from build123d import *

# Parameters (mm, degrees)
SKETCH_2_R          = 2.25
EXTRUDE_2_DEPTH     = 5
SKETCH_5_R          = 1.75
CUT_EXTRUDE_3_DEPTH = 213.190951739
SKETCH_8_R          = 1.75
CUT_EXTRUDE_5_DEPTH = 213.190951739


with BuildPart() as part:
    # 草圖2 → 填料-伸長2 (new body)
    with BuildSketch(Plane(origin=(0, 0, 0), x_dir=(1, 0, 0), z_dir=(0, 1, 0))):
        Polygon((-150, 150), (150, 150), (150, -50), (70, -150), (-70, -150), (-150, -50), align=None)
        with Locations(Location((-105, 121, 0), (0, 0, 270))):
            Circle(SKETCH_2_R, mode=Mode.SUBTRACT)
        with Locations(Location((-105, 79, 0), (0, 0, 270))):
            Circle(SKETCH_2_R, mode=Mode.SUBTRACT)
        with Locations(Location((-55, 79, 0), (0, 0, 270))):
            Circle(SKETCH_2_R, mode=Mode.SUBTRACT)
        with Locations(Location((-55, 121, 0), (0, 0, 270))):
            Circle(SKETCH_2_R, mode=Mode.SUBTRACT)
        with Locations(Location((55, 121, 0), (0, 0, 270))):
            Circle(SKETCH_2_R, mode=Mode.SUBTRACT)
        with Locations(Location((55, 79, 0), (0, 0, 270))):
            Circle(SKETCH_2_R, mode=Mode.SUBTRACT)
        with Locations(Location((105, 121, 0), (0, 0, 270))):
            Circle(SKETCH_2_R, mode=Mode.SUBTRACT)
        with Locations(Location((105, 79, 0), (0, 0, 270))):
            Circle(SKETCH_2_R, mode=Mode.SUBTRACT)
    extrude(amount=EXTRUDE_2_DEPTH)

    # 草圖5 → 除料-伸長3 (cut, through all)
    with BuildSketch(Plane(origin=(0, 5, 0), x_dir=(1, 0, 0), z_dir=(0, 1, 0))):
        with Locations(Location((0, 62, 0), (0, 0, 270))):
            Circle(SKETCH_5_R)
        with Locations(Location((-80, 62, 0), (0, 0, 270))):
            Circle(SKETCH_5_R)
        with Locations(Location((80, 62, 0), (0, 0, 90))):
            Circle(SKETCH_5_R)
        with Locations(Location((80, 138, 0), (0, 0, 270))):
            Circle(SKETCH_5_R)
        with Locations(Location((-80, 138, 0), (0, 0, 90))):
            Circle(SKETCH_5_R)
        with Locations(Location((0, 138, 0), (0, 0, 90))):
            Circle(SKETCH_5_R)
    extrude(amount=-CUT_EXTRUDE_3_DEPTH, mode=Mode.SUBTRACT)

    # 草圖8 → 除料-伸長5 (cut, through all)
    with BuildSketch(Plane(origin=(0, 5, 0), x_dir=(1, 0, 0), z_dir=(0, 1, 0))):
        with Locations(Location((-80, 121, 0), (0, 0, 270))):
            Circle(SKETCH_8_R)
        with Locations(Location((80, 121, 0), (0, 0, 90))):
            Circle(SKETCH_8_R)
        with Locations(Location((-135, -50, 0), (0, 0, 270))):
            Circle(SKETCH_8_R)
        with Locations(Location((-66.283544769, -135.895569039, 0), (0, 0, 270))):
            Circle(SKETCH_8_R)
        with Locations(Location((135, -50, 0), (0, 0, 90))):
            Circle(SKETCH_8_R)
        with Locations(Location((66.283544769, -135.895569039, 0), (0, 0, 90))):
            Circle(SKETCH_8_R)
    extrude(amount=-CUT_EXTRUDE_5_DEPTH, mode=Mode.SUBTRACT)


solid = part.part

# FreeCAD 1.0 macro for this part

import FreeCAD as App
import Part
import Sketcher
from FreeCAD import Vector

doc = App.newDocument("Part")
body = doc.addObject("PartDesign::Body", "Body")

# Sketch on XZ plane
sketch1 = body.newObject("Sketcher::SketchObject", "Sketch")
sketch1.AttachmentSupport = (doc.getObject("XZ_Plane"), [""])
sketch1.MapMode = "FlatFace"
sketch1.addGeometry(Part.LineSegment(Vector(150, -150, 0), Vector(-150, -150, 0)), False)
sketch1.addGeometry(Part.LineSegment(Vector(-150, -150, 0), Vector(-150, 50, 0)), False)
sketch1.addGeometry(Part.LineSegment(Vector(-150, 50, 0), Vector(-70, 150, 0)), False)
sketch1.addGeometry(Part.LineSegment(Vector(-70, 150, 0), Vector(70, 150, 0)), False)
sketch1.addGeometry(Part.LineSegment(Vector(70, 150, 0), Vector(150, 50, 0)), False)
sketch1.addGeometry(Part.LineSegment(Vector(150, 50, 0), Vector(150, -150, 0)), False)
sketch1.addGeometry(Part.Circle(Vector(105, -79, 0), Vector(0, 0, 1), 2.2), False)
sketch1.addGeometry(Part.Circle(Vector(55, -79, 0), Vector(0, 0, 1), 2.2), False)
sketch1.addGeometry(Part.Circle(Vector(-55, -79, 0), Vector(0, 0, 1), 2.2), False)
sketch1.addGeometry(Part.Circle(Vector(-105, -79, 0), Vector(0, 0, 1), 2.2), False)
sketch1.addGeometry(Part.Circle(Vector(105, -121, 0), Vector(0, 0, 1), 2.2), False)
sketch1.addGeometry(Part.Circle(Vector(55, -121, 0), Vector(0, 0, 1), 2.2), False)
sketch1.addGeometry(Part.Circle(Vector(-55, -121, 0), Vector(0, 0, 1), 2.2), False)
sketch1.addGeometry(Part.Circle(Vector(-105, -121, 0), Vector(0, 0, 1), 2.2), False)
sketch1.addConstraint(Sketcher.Constraint("Coincident", 0, 2, 1, 1))
sketch1.addConstraint(Sketcher.Constraint("Coincident", 1, 2, 2, 1))
sketch1.addConstraint(Sketcher.Constraint("Coincident", 2, 2, 3, 1))
sketch1.addConstraint(Sketcher.Constraint("Coincident", 3, 2, 4, 1))
sketch1.addConstraint(Sketcher.Constraint("Coincident", 4, 2, 5, 1))
sketch1.addConstraint(Sketcher.Constraint("Coincident", 5, 2, 0, 1))
sketch1.addConstraint(Sketcher.Constraint("Horizontal", 0))
sketch1.addConstraint(Sketcher.Constraint("Vertical", 1))
sketch1.addConstraint(Sketcher.Constraint("Horizontal", 3))
sketch1.addConstraint(Sketcher.Constraint("Vertical", 5))
sketch1.addConstraint(Sketcher.Constraint("Equal", 6, 7))
sketch1.addConstraint(Sketcher.Constraint("Equal", 7, 8))
sketch1.addConstraint(Sketcher.Constraint("Equal", 8, 9))
sketch1.addConstraint(Sketcher.Constraint("Equal", 9, 10))
sketch1.addConstraint(Sketcher.Constraint("Equal", 10, 11))
sketch1.addConstraint(Sketcher.Constraint("Equal", 11, 12))
sketch1.addConstraint(Sketcher.Constraint("Equal", 12, 13))
sketch1.addConstraint(Sketcher.Constraint("Symmetric", 7, 3, 8, 3, -2))
sketch1.addConstraint(Sketcher.Constraint("Symmetric", 6, 3, 9, 3, -2))
sketch1.addConstraint(Sketcher.Constraint("Symmetric", 11, 3, 12, 3, -2))
sketch1.addConstraint(Sketcher.Constraint("Symmetric", 10, 3, 13, 3, -2))
sketch1.addConstraint(Sketcher.Constraint("Symmetric", 1, 2, 4, 2, -2))
sketch1.addConstraint(Sketcher.Constraint("Horizontal", 6, 3, 7, 3))
sketch1.addConstraint(Sketcher.Constraint("Horizontal", 10, 3, 11, 3))
sketch1.addConstraint(Sketcher.Constraint("Vertical", 6, 3, 10, 3))
sketch1.addConstraint(Sketcher.Constraint("Vertical", 7, 3, 11, 3))
sketch1.addConstraint(Sketcher.Constraint("Equal", 2, 4))
sketch1.addConstraint(Sketcher.Constraint("Diameter", 6, 4.5))
sketch1.addConstraint(Sketcher.Constraint("DistanceX", 0, 2, 0, 1, 300.0))
sketch1.addConstraint(Sketcher.Constraint("DistanceX", 3, 1, 3, 2, 140.0))
sketch1.addConstraint(Sketcher.Constraint("DistanceY", 1, 1, 1, 2, 200.0))
sketch1.addConstraint(Sketcher.Constraint("DistanceX", -1, 1, 6, 3, 105.0))
sketch1.addConstraint(Sketcher.Constraint("DistanceY", 6, 3, -1, 1, 79.0))
sketch1.addConstraint(Sketcher.Constraint("DistanceX", -1, 1, 7, 3, 55.0))
sketch1.addConstraint(Sketcher.Constraint("DistanceY", 10, 3, -1, 1, 121.0))
sketch1.addConstraint(Sketcher.Constraint("DistanceY", 0, 2, -1, 1, 150.0))
sketch1.addConstraint(Sketcher.Constraint("DistanceY", -1, 1, 2, 2, 150.0))
pad1 = body.newObject("PartDesign::Pad", "Pad")
pad1.Profile = sketch1
pad1.Length = 5
pad1.Reversed = True

# Sketch on XZ plane
sketch2 = body.newObject("Sketcher::SketchObject", "Sketch001")
sketch2.AttachmentSupport = (doc.getObject("XZ_Plane"), [""])
sketch2.MapMode = "FlatFace"
sketch2.AttachmentOffset = App.Placement(Vector(0, 0, -5), App.Rotation())
sketch2.addGeometry(Part.Circle(Vector(0, -62, 0), Vector(0, 0, 1), 1.8), False)
sketch2.addGeometry(Part.Circle(Vector(-80, -62, 0), Vector(0, 0, 1), 1.8), False)
sketch2.addGeometry(Part.Circle(Vector(80, -62, 0), Vector(0, 0, 1), 1.8), False)
sketch2.addGeometry(Part.Circle(Vector(80, -138, 0), Vector(0, 0, 1), 1.8), False)
sketch2.addGeometry(Part.Circle(Vector(-80, -138, 0), Vector(0, 0, 1), 1.8), False)
sketch2.addGeometry(Part.Circle(Vector(0, -138, 0), Vector(0, 0, 1), 1.8), False)
sketch2.addConstraint(Sketcher.Constraint("Equal", 0, 1))
sketch2.addConstraint(Sketcher.Constraint("Equal", 1, 2))
sketch2.addConstraint(Sketcher.Constraint("Equal", 2, 3))
sketch2.addConstraint(Sketcher.Constraint("Equal", 3, 4))
sketch2.addConstraint(Sketcher.Constraint("Equal", 4, 5))
sketch2.addConstraint(Sketcher.Constraint("Symmetric", 1, 3, 2, 3, -2))
sketch2.addConstraint(Sketcher.Constraint("Symmetric", 3, 3, 4, 3, -2))
sketch2.addConstraint(Sketcher.Constraint("PointOnObject", 0, 3, -2))
sketch2.addConstraint(Sketcher.Constraint("PointOnObject", 5, 3, -2))
sketch2.addConstraint(Sketcher.Constraint("Horizontal", 0, 3, 1, 3))
sketch2.addConstraint(Sketcher.Constraint("Horizontal", 4, 3, 5, 3))
sketch2.addConstraint(Sketcher.Constraint("Vertical", 2, 3, 3, 3))
sketch2.addConstraint(Sketcher.Constraint("Diameter", 0, 3.5))
sketch2.addConstraint(Sketcher.Constraint("DistanceY", 0, 3, -1, 1, 62.0))
sketch2.addConstraint(Sketcher.Constraint("DistanceX", 1, 3, -1, 1, 80.0))
sketch2.addConstraint(Sketcher.Constraint("DistanceY", 3, 3, -1, 1, 138.0))
pocket1 = body.newObject("PartDesign::Pocket", "Pocket")
pocket1.Profile = sketch2
pocket1.Type = "ThroughAll"
pocket1.Reversed = True

# Sketch on XZ plane
sketch3 = body.newObject("Sketcher::SketchObject", "Sketch002")
sketch3.AttachmentSupport = (doc.getObject("XZ_Plane"), [""])
sketch3.MapMode = "FlatFace"
sketch3.AttachmentOffset = App.Placement(Vector(0, 0, -5), App.Rotation())
sketch3.addGeometry(Part.Circle(Vector(-80, -121, 0), Vector(0, 0, 1), 1.8), False)
sketch3.addGeometry(Part.Circle(Vector(80, -121, 0), Vector(0, 0, 1), 1.8), False)
sketch3.addGeometry(Part.Circle(Vector(-135, 50, 0), Vector(0, 0, 1), 1.8), False)
sketch3.addGeometry(Part.Circle(Vector(-66.3, 135.9, 0), Vector(0, 0, 1), 1.8), False)
sketch3.addGeometry(Part.Circle(Vector(135, 50, 0), Vector(0, 0, 1), 1.8), False)
sketch3.addGeometry(Part.Circle(Vector(66.3, 135.9, 0), Vector(0, 0, 1), 1.8), False)
sketch3.addConstraint(Sketcher.Constraint("Equal", 0, 1))
sketch3.addConstraint(Sketcher.Constraint("Equal", 1, 2))
sketch3.addConstraint(Sketcher.Constraint("Equal", 2, 3))
sketch3.addConstraint(Sketcher.Constraint("Equal", 3, 4))
sketch3.addConstraint(Sketcher.Constraint("Equal", 4, 5))
sketch3.addConstraint(Sketcher.Constraint("Symmetric", 0, 3, 1, 3, -2))
sketch3.addConstraint(Sketcher.Constraint("Symmetric", 2, 3, 4, 3, -2))
sketch3.addConstraint(Sketcher.Constraint("Symmetric", 3, 3, 5, 3, -2))
sketch3.addConstraint(Sketcher.Constraint("Diameter", 0, 3.5))
sketch3.addConstraint(Sketcher.Constraint("DistanceX", 0, 3, -1, 1, 80.0))
sketch3.addConstraint(Sketcher.Constraint("DistanceY", 0, 3, -1, 1, 121.0))
sketch3.addConstraint(Sketcher.Constraint("DistanceX", 2, 3, -1, 1, 135.0))
sketch3.addConstraint(Sketcher.Constraint("DistanceY", -1, 1, 2, 3, 50.0))
sketch3.addConstraint(Sketcher.Constraint("DistanceY", -1, 1, 3, 3, 135.895569))
sketch3.addConstraint(Sketcher.Constraint("DistanceX", 3, 3, 5, 3, 132.56709))
pocket2 = body.newObject("PartDesign::Pocket", "Pocket001")
pocket2.Profile = sketch3
pocket2.Type = "ThroughAll"
pocket2.Reversed = True

doc.recompute()
